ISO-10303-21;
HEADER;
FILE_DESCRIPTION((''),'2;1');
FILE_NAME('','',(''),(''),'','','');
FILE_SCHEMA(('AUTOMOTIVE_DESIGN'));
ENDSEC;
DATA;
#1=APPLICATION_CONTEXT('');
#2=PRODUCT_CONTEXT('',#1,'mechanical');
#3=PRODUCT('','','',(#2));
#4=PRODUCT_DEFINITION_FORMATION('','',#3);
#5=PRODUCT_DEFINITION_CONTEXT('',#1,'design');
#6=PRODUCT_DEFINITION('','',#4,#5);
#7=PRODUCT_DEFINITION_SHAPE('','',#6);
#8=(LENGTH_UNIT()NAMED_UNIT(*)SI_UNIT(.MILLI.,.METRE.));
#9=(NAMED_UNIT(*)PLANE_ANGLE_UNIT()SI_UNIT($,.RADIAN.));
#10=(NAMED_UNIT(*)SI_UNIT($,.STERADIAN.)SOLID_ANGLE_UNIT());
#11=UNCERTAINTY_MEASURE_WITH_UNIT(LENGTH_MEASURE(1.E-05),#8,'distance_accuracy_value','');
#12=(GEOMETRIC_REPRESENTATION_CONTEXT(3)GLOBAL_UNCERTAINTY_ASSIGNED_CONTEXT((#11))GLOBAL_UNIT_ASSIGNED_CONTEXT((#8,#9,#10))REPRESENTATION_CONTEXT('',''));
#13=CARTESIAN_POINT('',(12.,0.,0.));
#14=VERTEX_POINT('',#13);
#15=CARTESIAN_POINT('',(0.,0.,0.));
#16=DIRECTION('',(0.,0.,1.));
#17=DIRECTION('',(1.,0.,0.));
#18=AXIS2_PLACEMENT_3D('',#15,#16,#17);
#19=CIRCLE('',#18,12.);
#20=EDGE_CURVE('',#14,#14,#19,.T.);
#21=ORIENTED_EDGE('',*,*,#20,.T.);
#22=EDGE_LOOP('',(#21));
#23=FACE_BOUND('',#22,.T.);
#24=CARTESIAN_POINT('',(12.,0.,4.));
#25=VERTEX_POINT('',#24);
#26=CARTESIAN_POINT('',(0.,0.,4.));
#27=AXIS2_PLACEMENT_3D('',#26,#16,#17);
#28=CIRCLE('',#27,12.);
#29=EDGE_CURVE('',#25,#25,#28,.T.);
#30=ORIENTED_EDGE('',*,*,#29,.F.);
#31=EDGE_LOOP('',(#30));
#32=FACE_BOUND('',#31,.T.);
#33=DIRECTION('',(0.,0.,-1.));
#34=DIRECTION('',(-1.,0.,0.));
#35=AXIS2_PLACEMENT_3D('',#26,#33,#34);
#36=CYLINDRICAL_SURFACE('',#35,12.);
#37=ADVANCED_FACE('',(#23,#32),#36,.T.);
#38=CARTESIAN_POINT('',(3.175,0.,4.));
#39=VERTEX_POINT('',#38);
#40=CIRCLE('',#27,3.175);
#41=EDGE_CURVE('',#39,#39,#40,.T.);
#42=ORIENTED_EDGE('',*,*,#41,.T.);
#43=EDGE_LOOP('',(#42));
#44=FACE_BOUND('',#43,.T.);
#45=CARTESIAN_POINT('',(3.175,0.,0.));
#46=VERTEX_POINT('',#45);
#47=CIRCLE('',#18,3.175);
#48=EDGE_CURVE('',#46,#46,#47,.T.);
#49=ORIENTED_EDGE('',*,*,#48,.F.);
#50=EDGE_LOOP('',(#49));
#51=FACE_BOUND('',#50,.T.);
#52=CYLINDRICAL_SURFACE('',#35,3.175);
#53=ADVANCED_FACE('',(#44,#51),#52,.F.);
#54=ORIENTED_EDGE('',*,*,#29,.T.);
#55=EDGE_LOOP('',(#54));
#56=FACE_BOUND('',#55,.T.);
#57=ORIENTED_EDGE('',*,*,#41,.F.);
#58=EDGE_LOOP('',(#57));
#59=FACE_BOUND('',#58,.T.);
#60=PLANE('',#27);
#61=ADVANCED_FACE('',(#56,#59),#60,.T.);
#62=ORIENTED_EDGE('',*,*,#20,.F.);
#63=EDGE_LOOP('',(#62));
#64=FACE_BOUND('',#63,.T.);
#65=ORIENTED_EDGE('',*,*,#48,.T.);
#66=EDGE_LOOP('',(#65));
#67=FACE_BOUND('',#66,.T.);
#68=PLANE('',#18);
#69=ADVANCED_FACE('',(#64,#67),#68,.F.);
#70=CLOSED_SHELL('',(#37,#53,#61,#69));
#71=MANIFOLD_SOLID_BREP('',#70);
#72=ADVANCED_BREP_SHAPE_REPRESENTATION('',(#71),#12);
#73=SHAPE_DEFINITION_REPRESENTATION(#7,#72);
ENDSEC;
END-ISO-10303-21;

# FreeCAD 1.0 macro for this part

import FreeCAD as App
import Part
import Sketcher
Q = App.Units.Quantity

doc = App.newDocument("Part")
body = doc.addObject("PartDesign::Body", "Body")

# Sketch on XY plane
sketch1 = body.newObject("Sketcher::SketchObject", "Sketch")
sketch1.AttachmentSupport = (doc.getObject("XY_Plane"), [""])
sketch1.MapMode = "FlatFace"
sketch1.addGeometry([
    Part.Circle(App.Vector(0, 0, 0), App.Vector(0, 0, 1), 12),
    Part.Circle(App.Vector(0, 0, 0), App.Vector(0, 0, 1), 3.175),
], False)
sketch1.addConstraint([
    Sketcher.Constraint("Coincident", 0, 3, -1, 1),
    Sketcher.Constraint("Coincident", 1, 3, -1, 1),
    Sketcher.Constraint("Diameter", 0, Q("24 mm")),
    Sketcher.Constraint("Diameter", 1, Q("6.35 mm")),
])
pad1 = body.newObject("PartDesign::Pad", "Pad")
pad1.Profile = sketch1
pad1.Length = 4

doc.recompute()
